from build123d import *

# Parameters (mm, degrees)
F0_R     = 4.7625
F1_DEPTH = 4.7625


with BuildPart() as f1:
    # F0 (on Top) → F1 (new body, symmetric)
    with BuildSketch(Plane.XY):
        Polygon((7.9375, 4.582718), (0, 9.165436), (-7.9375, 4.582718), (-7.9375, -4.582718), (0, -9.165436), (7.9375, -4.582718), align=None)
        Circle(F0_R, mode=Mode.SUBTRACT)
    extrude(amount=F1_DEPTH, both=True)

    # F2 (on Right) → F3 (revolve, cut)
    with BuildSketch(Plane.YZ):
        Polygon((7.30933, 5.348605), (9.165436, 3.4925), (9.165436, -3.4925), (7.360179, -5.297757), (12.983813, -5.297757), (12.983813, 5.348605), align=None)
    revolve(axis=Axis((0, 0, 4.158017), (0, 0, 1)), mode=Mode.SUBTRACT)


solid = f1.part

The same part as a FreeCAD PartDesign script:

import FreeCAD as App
import Part
import Sketcher
Q = App.Units.Quantity

doc = App.newDocument("Part")
body = doc.addObject("PartDesign::Body", "Body")

# Sketch on XY plane
sketch1 = body.newObject("Sketcher::SketchObject", "Sketch")
sketch1.AttachmentSupport = (doc.getObject("XY_Plane"), [""])
sketch1.MapMode = "FlatFace"
sketch1.addGeometry([
    Part.LineSegment(App.Vector(7.9375, 4.582718, 0), App.Vector(0, 9.165436, 0)),  # 0
    Part.LineSegment(App.Vector(0, 9.165436, 0), App.Vector(-7.9375, 4.582718, 0)),  # 1
    Part.LineSegment(App.Vector(-7.9375, 4.582718, 0), App.Vector(-7.9375, -4.582718, 0)),  # 2
    Part.LineSegment(App.Vector(-7.9375, -4.582718, 0), App.Vector(0, -9.165436, 0)),  # 3
    Part.LineSegment(App.Vector(0, -9.165436, 0), App.Vector(7.9375, -4.582718, 0)),  # 4
    Part.LineSegment(App.Vector(7.9375, -4.582718, 0), App.Vector(7.9375, 4.582718, 0)),  # 5
    Part.Circle(App.Vector(0, 0, 0), App.Vector(0, 0, 1), 4.7625),  # 6
], False)
sketch1.addConstraint([
    Sketcher.Constraint("Coincident", 0, 2, 1, 1),
    Sketcher.Constraint("Coincident", 1, 2, 2, 1),
    Sketcher.Constraint("Coincident", 2, 2, 3, 1),
    Sketcher.Constraint("Coincident", 3, 2, 4, 1),
    Sketcher.Constraint("Coincident", 4, 2, 5, 1),
    Sketcher.Constraint("Coincident", 5, 2, 0, 1),
    Sketcher.Constraint("Vertical", 2),
    Sketcher.Constraint("Vertical", 5),
    Sketcher.Constraint("Coincident", 6, 3, -1, 1),
    Sketcher.Constraint("Symmetric", 0, 2, 3, 2, -1, 1),
    Sketcher.Constraint("Symmetric", 1, 2, 4, 2, -1, 1),
    Sketcher.Constraint("PointOnObject", 0, 2, -2),
    Sketcher.Constraint("Parallel", 0, 3),
    Sketcher.Constraint("Horizontal", 2, 2, 4, 2),
    Sketcher.Constraint("Diameter", 6, Q("0.375 in")),
    Sketcher.Constraint("Angle", 0, Q("149.999999 deg")),
    Sketcher.Constraint("DistanceX", 1, 2, -1, 1, Q("0.3125 in")),
    Sketcher.Constraint("DistanceY", 2, 2, 2, 1, Q("9.165436 mm")),
])
pad1 = body.newObject("PartDesign::Pad", "Pad")
pad1.Profile = sketch1
pad1.Length = Q("0.375 in")
pad1.Midplane = True

# Sketch on YZ plane
sketch2 = body.newObject("Sketcher::SketchObject", "Sketch001")
sketch2.AttachmentSupport = (doc.getObject("YZ_Plane"), [""])
sketch2.MapMode = "FlatFace"
sketch2.addGeometry([
    Part.LineSegment(App.Vector(7.30933, 5.348605, 0), App.Vector(9.165436, 3.4925, 0)),  # 0
    Part.LineSegment(App.Vector(9.165436, 3.4925, 0), App.Vector(9.165436, -3.4925, 0)),  # 1
    Part.LineSegment(App.Vector(9.165436, -3.4925, 0), App.Vector(7.360179, -5.297757, 0)),  # 2
    Part.LineSegment(App.Vector(7.360179, -5.297757, 0), App.Vector(12.983813, -5.297757, 0)),  # 3
    Part.LineSegment(App.Vector(12.983813, -5.297757, 0), App.Vector(12.983813, 5.348605, 0)),  # 4
    Part.LineSegment(App.Vector(12.983813, 5.348605, 0), App.Vector(7.30933, 5.348605, 0)),  # 5
], False)
sketch2.addConstraint([
    Sketcher.Constraint("Coincident", 0, 2, 1, 1),
    Sketcher.Constraint("Coincident", 1, 2, 2, 1),
    Sketcher.Constraint("Coincident", 2, 2, 3, 1),
    Sketcher.Constraint("Coincident", 3, 2, 4, 1),
    Sketcher.Constraint("Coincident", 4, 2, 5, 1),
    Sketcher.Constraint("Coincident", 5, 2, 0, 1),
    Sketcher.Constraint("Vertical", 1),
    Sketcher.Constraint("Horizontal", 3),
    Sketcher.Constraint("Vertical", 4),
    Sketcher.Constraint("Horizontal", 5),
    Sketcher.Constraint("Perpendicular", 0, 2),
    Sketcher.Constraint("Angle", 0, Q("-44.999985 deg")),
    Sketcher.Constraint("DistanceY", 1, 2, 1, 1, Q("0.275 in")),
    Sketcher.Constraint("DistanceY", -1, 1, 0, 2, Q("0.1375 in")),
    Sketcher.Constraint("Distance", 0, Q("2.62493 mm")),
    Sketcher.Constraint("Distance", 2, Q("2.553019 mm")),
    Sketcher.Constraint("DistanceX", 3, 1, 3, 2, Q("5.623634 mm")),
    Sketcher.Constraint("DistanceX", -1, 1, 2, 2, Q("7.360179 mm")),
])
groove = body.newObject("PartDesign::Groove", "Groove")
groove.Profile = sketch2
groove.ReferenceAxis = (sketch2, ["V_Axis"])
groove.Angle = 360

doc.recompute()
